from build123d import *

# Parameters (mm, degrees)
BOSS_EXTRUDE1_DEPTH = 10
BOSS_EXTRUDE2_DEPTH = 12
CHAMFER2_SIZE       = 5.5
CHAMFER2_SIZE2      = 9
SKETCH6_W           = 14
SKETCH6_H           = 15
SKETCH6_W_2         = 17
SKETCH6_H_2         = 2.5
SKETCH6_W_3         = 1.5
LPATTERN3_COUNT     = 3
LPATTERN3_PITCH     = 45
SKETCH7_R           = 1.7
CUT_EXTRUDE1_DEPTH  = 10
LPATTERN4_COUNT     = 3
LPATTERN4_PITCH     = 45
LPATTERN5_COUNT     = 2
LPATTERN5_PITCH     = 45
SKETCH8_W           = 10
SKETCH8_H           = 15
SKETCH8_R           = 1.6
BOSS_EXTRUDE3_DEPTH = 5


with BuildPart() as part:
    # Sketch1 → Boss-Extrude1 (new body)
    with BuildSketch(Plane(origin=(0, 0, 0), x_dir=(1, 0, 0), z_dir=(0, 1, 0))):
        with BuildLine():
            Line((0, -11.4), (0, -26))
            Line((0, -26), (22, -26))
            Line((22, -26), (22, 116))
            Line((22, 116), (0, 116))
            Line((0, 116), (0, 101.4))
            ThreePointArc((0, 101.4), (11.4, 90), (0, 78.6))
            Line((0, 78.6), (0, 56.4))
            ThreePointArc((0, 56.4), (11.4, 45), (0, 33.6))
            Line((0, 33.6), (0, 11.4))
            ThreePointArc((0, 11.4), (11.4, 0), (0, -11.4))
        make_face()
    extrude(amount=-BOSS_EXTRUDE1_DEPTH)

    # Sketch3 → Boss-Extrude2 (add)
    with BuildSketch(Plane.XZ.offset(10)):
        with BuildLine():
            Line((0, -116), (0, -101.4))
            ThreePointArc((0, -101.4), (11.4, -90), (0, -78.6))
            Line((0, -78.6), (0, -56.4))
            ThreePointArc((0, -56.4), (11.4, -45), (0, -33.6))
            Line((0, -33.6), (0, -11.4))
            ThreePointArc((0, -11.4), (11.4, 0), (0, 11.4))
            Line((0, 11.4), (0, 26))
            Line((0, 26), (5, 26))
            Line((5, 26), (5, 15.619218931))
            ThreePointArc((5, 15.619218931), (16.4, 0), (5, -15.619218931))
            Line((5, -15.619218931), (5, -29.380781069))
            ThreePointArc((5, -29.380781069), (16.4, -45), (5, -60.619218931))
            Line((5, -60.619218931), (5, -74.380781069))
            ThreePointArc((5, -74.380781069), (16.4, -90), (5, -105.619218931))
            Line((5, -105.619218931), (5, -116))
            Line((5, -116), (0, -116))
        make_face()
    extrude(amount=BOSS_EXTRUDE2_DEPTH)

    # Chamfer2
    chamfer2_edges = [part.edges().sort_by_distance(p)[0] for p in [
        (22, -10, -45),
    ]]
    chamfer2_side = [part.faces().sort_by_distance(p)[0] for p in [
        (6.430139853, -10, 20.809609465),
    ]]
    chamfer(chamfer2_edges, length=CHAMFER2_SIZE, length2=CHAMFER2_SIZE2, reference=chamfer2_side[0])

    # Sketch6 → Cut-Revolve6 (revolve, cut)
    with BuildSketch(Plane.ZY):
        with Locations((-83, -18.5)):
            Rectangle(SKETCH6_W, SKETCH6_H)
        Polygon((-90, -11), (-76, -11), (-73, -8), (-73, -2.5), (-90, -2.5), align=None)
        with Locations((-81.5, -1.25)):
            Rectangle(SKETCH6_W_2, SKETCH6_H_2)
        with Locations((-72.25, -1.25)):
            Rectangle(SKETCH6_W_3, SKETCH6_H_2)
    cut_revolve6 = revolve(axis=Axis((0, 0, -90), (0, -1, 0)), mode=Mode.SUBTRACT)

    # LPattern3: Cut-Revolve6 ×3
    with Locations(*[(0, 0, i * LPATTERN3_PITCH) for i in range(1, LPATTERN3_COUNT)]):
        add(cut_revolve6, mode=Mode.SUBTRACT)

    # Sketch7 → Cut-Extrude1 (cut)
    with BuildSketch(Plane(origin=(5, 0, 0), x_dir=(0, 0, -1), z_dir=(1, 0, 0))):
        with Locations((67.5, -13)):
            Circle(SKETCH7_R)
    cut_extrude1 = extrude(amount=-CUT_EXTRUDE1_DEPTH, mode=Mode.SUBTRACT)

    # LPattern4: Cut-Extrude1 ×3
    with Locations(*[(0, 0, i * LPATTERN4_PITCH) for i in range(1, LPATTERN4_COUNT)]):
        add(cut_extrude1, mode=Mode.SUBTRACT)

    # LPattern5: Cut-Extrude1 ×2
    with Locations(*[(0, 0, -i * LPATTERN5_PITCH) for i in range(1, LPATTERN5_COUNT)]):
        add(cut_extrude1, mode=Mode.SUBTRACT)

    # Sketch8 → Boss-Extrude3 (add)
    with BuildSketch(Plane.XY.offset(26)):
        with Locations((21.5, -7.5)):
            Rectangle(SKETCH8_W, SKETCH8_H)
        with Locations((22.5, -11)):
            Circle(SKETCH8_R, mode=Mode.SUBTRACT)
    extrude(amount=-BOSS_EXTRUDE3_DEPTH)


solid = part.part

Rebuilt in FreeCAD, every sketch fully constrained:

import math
import FreeCAD as App
import Part
import Sketcher

V = App.Vector
Q = App.Units.Quantity


def edges_at(feature, points):
    """Names of the edges that pass closest to the given points."""
    edges = feature.Shape.Edges
    near = lambda p: min(range(len(edges)), key=lambda i: edges[i].distToShape(Part.Vertex(*p))[0])
    return sorted({f"Edge{near(p) + 1}" for p in points})

doc = App.newDocument("Part")
body = doc.addObject("PartDesign::Body", "Body")

# Sketch on XZ plane
sketch1 = body.newObject("Sketcher::SketchObject", "Sketch")
sketch1.AttachmentSupport = (doc.getObject("XZ_Plane"), [""])
sketch1.MapMode = "FlatFace"
sketch1.addGeometry([
    Part.LineSegment(V(0, 11, 0), V(0, 26, 0)),  # 0
    Part.LineSegment(V(0, 26, 0), V(22, 26, 0)),  # 1
    Part.LineSegment(V(22, 26, 0), V(22, -116, 0)),  # 2
    Part.LineSegment(V(22, -116, 0), V(0, -116, 0)),  # 3
    Part.LineSegment(V(0, -116, 0), V(0, -101, 0)),  # 4
    Part.ArcOfCircle(Part.Circle(V(0, -90, 0), V(0, 0, 1), 11), math.radians(-90), math.radians(90)),  # 5
    Part.LineSegment(V(0, -79, 0), V(0, -56, 0)),  # 6
    Part.ArcOfCircle(Part.Circle(V(0, -45, 0), V(0, 0, 1), 11), math.radians(-90), math.radians(90)),  # 7
    Part.LineSegment(V(0, -34, 0), V(0, -11, 0)),  # 8
    Part.ArcOfCircle(Part.Circle(V(0, 0, 0), V(0, 0, 1), 11), math.radians(-90), math.radians(90)),  # 9
], False)
sketch1.addConstraint([
    Sketcher.Constraint("Coincident", 0, 2, 1, 1),
    Sketcher.Constraint("Coincident", 1, 2, 2, 1),
    Sketcher.Constraint("Coincident", 2, 2, 3, 1),
    Sketcher.Constraint("Coincident", 3, 2, 4, 1),
    Sketcher.Constraint("Coincident", 4, 2, 5, 1),
    Sketcher.Constraint("Coincident", 5, 2, 6, 1),
    Sketcher.Constraint("Coincident", 6, 2, 7, 1),
    Sketcher.Constraint("Coincident", 7, 2, 8, 1),
    Sketcher.Constraint("Coincident", 8, 2, 9, 1),
    Sketcher.Constraint("Coincident", 9, 2, 0, 1),
    Sketcher.Constraint("Vertical", 0),
    Sketcher.Constraint("Horizontal", 1),
    Sketcher.Constraint("Vertical", 2),
    Sketcher.Constraint("Horizontal", 3),
    Sketcher.Constraint("Vertical", 4),
    Sketcher.Constraint("Vertical", 6),
    Sketcher.Constraint("Vertical", 8),
    Sketcher.Constraint("Coincident", 9, 3, -1, 1),
    Sketcher.Constraint("Equal", 5, 7),
    Sketcher.Constraint("Equal", 7, 9),
    Sketcher.Constraint("PointOnObject", 5, 3, -2),
    Sketcher.Constraint("PointOnObject", 7, 3, -2),
    Sketcher.Constraint("PointOnObject", 0, 2, -2),
    Sketcher.Constraint("PointOnObject", 3, 2, -2),
    Sketcher.Constraint("PointOnObject", 5, 2, -2),
    Sketcher.Constraint("PointOnObject", 7, 2, -2),
    Sketcher.Constraint("Equal", 0, 4),
    Sketcher.Constraint("Equal", 6, 8),
    Sketcher.Constraint("Radius", 5, Q("11.4 mm")),
    Sketcher.Constraint("DistanceX", 1, 1, 1, 2, Q("22 mm")),
    Sketcher.Constraint("DistanceY", 2, 2, 2, 1, Q("142 mm")),
    Sketcher.Constraint("DistanceY", 0, 1, 0, 2, Q("14.6 mm")),
])
pad1 = body.newObject("PartDesign::Pad", "Pad")
pad1.Profile = sketch1
pad1.Length = 10

# Sketch on XZ plane
sketch2 = body.newObject("Sketcher::SketchObject", "Sketch001")
sketch2.AttachmentSupport = (doc.getObject("XZ_Plane"), [""])
sketch2.MapMode = "FlatFace"
sketch2.AttachmentOffset = App.Placement(V(0, 0, 10), App.Rotation())
sketch2.addGeometry([
    Part.LineSegment(V(0, -101, 0), V(0, -116, 0)),  # 0
    Part.LineSegment(V(0, -116, 0), V(5, -116, 0)),  # 1
    Part.LineSegment(V(5, -116, 0), V(5, -106, 0)),  # 2
    Part.ArcOfCircle(Part.Circle(V(0, -90, 0), V(0, 0, 1), 16), math.radians(-72), math.radians(72)),  # 3
    Part.LineSegment(V(5, -74, 0), V(5, -61, 0)),  # 4
    Part.ArcOfCircle(Part.Circle(V(0, -45, 0), V(0, 0, 1), 16), math.radians(-72), math.radians(72)),  # 5
    Part.LineSegment(V(5, -29, 0), V(5, -16, 0)),  # 6
    Part.ArcOfCircle(Part.Circle(V(0, 0, 0), V(0, 0, 1), 16), math.radians(-72), math.radians(72)),  # 7
    Part.LineSegment(V(5, 16, 0), V(5, 26, 0)),  # 8
    Part.LineSegment(V(5, 26, 0), V(0, 26, 0)),  # 9
    Part.LineSegment(V(0, 26, 0), V(0, 11, 0)),  # 10
    Part.ArcOfCircle(Part.Circle(V(0, 0, 0), V(0, 0, 1), 11), math.radians(-90), math.radians(90)),  # 11
    Part.LineSegment(V(0, -11, 0), V(0, -34, 0)),  # 12
    Part.ArcOfCircle(Part.Circle(V(0, -45, 0), V(0, 0, 1), 11), math.radians(-90), math.radians(90)),  # 13
    Part.LineSegment(V(0, -56, 0), V(0, -79, 0)),  # 14
    Part.ArcOfCircle(Part.Circle(V(0, -90, 0), V(0, 0, 1), 11), math.radians(-90), math.radians(90)),  # 15
], False)
sketch2.addConstraint([
    Sketcher.Constraint("Coincident", 0, 2, 1, 1),
    Sketcher.Constraint("Coincident", 1, 2, 2, 1),
    Sketcher.Constraint("Coincident", 2, 2, 3, 1),
    Sketcher.Constraint("Coincident", 3, 2, 4, 1),
    Sketcher.Constraint("Coincident", 4, 2, 5, 1),
    Sketcher.Constraint("Coincident", 5, 2, 6, 1),
    Sketcher.Constraint("Coincident", 6, 2, 7, 1),
    Sketcher.Constraint("Coincident", 7, 2, 8, 1),
    Sketcher.Constraint("Coincident", 8, 2, 9, 1),
    Sketcher.Constraint("Coincident", 9, 2, 10, 1),
    Sketcher.Constraint("Coincident", 10, 2, 11, 2),
    Sketcher.Constraint("Coincident", 11, 1, 12, 1),
    Sketcher.Constraint("Coincident", 12, 2, 13, 2),
    Sketcher.Constraint("Coincident", 13, 1, 14, 1),
    Sketcher.Constraint("Coincident", 14, 2, 15, 2),
    Sketcher.Constraint("Coincident", 15, 1, 0, 1),
    Sketcher.Constraint("Vertical", 0),
    Sketcher.Constraint("Horizontal", 1),
    Sketcher.Constraint("Vertical", 2),
    Sketcher.Constraint("Vertical", 4),
    Sketcher.Constraint("Vertical", 6),
    Sketcher.Constraint("Vertical", 8),
    Sketcher.Constraint("Horizontal", 9),
    Sketcher.Constraint("Vertical", 10),
    Sketcher.Constraint("Vertical", 12),
    Sketcher.Constraint("Vertical", 14),
    Sketcher.Constraint("Coincident", 7, 3, -1, 1),
    Sketcher.Constraint("Coincident", 11, 3, -1, 1),
    Sketcher.Constraint("Coincident", 13, 3, 5, 3),
    Sketcher.Constraint("Coincident", 15, 3, 3, 3),
    Sketcher.Constraint("Equal", 3, 5),
    Sketcher.Constraint("Equal", 5, 7),
    Sketcher.Constraint("Equal", 11, 13),
    Sketcher.Constraint("Equal", 13, 15),
    Sketcher.Constraint("PointOnObject", 3, 3, -2),
    Sketcher.Constraint("PointOnObject", 5, 3, -2),
    Sketcher.Constraint("PointOnObject", 0, 2, -2),
    Sketcher.Constraint("PointOnObject", 9, 2, -2),
    Sketcher.Constraint("PointOnObject", 11, 1, -2),
    Sketcher.Constraint("PointOnObject", 13, 1, -2),
    Sketcher.Constraint("Vertical", 2, 2, 3, 2),
    Sketcher.Constraint("Vertical", 4, 2, 5, 2),
    Sketcher.Constraint("Vertical", 6, 2, 7, 2),
    Sketcher.Constraint("Equal", 4, 6),
    Sketcher.Constraint("Equal", 2, 8),
    Sketcher.Constraint("Radius", 3, Q("16.4 mm")),
    Sketcher.Constraint("Radius", 11, Q("11.4 mm")),
    Sketcher.Constraint("DistanceX", 1, 1, 1, 2, Q("5 mm")),
    Sketcher.Constraint("DistanceY", 0, 2, 0, 1, Q("14.6 mm")),
    Sketcher.Constraint("DistanceY", 12, 2, 12, 1, Q("22.2 mm")),
])
pad2 = body.newObject("PartDesign::Pad", "Pad001")
pad2.Profile = sketch2
pad2.Length = 12
doc.recompute()

chamfer = body.newObject("PartDesign::Chamfer", "Chamfer")
chamfer.Base = (pad2, edges_at(pad2, [(22, -10, -45)]))
chamfer.ChamferType = "Two distances"
chamfer.Size = 5.5
chamfer.Size2 = 9
chamfer.FlipDirection = True

# Sketch on YZ plane
sketch3 = body.newObject("Sketcher::SketchObject", "Sketch002")
sketch3.AttachmentSupport = (doc.getObject("YZ_Plane"), [""])
sketch3.MapMode = "FlatFace"
sketch3.addGeometry([
    Part.LineSegment(V(-26, -90, 0), V(-26, -76, 0)),  # 0
    Part.LineSegment(V(-26, -76, 0), V(-11, -76, 0)),  # 1
    Part.LineSegment(V(-11, -76, 0), V(-8, -73, 0)),  # 2
    Part.LineSegment(V(-8, -73, 0), V(-2.5, -73, 0)),  # 3
    Part.LineSegment(V(-2.5, -73, 0), V(-2.5, -71.5, 0)),  # 4
    Part.LineSegment(V(-2.5, -71.5, 0), V(0, -71.5, 0)),  # 5
    Part.LineSegment(V(0, -71.5, 0), V(0, -90, 0)),  # 6
    Part.LineSegment(V(0, -90, 0), V(-26, -90, 0)),  # 7
], False)
sketch3.addGeometry(Part.LineSegment(V(0, -90, 0), V(-26, -90, 0)), True)  # axis
sketch3.addConstraint([
    Sketcher.Constraint("Coincident", 0, 2, 1, 1),
    Sketcher.Constraint("Coincident", 1, 2, 2, 1),
    Sketcher.Constraint("Coincident", 2, 2, 3, 1),
    Sketcher.Constraint("Coincident", 3, 2, 4, 1),
    Sketcher.Constraint("Coincident", 4, 2, 5, 1),
    Sketcher.Constraint("Coincident", 5, 2, 6, 1),
    Sketcher.Constraint("Coincident", 6, 2, 7, 1),
    Sketcher.Constraint("Coincident", 7, 2, 0, 1),
    Sketcher.Constraint("Vertical", 0),
    Sketcher.Constraint("Horizontal", 1),
    Sketcher.Constraint("Horizontal", 3),
    Sketcher.Constraint("Vertical", 4),
    Sketcher.Constraint("Horizontal", 5),
    Sketcher.Constraint("Vertical", 6),
    Sketcher.Constraint("Horizontal", 7),
    Sketcher.Constraint("Horizontal", 8),
    Sketcher.Constraint("Coincident", 8, 1, 6, 2),
    Sketcher.Constraint("PointOnObject", 5, 2, -2),
    Sketcher.Constraint("Vertical", 0, 2, 8, 2),
    Sketcher.Constraint("DistanceX", 1, 1, 1, 2, Q("15 mm")),
    Sketcher.Constraint("DistanceX", 7, 2, 7, 1, Q("26 mm")),
    Sketcher.Constraint("DistanceY", 0, 1, 0, 2, Q("14 mm")),
    Sketcher.Constraint("Angle", 2, Q("45 deg")),
    Sketcher.Constraint("DistanceX", 3, 1, 3, 2, Q("5.5 mm")),
    Sketcher.Constraint("DistanceX", 5, 1, 5, 2, Q("2.5 mm")),
    Sketcher.Constraint("DistanceY", 4, 1, 4, 2, Q("1.5 mm")),
    Sketcher.Constraint("DistanceY", 0, 2, -1, 1, Q("76 mm")),
])
groove = body.newObject("PartDesign::Groove", "Groove")
groove.Profile = sketch3
groove.ReferenceAxis = (sketch3, ["Axis0"])
groove.Angle = 360
doc.recompute()

linearpattern = body.newObject("PartDesign::LinearPattern", "LinearPattern")
linearpattern.Originals = [groove]
linearpattern.Direction = (doc.getObject("Z_Axis"), [""])
linearpattern.Mode = "offset"
linearpattern.Offset = 45
linearpattern.Occurrences = 3
body.Tip = linearpattern

# Sketch on YZ plane
sketch4 = body.newObject("Sketcher::SketchObject", "Sketch003")
sketch4.AttachmentSupport = (doc.getObject("YZ_Plane"), [""])
sketch4.MapMode = "FlatFace"
sketch4.AttachmentOffset = App.Placement(V(0, 0, 5), App.Rotation())
sketch4.addGeometry(Part.Circle(V(-13, -67.5, 0), V(0, 0, 1), 1.7), False)
sketch4.addConstraint([
    Sketcher.Constraint("Diameter", 0, Q("3.4 mm")),
    Sketcher.Constraint("DistanceX", 0, 3, -1, 1, Q("13 mm")),
    Sketcher.Constraint("DistanceY", 0, 3, -1, 1, Q("67.5 mm")),
])
pocket1 = body.newObject("PartDesign::Pocket", "Pocket")
pocket1.Profile = sketch4
pocket1.Length = 10
doc.recompute()

linearpattern2 = body.newObject("PartDesign::LinearPattern", "LinearPattern001")
linearpattern2.Originals = [pocket1]
linearpattern2.Direction = (doc.getObject("Z_Axis"), [""])
linearpattern2.Mode = "offset"
linearpattern2.Offset = 45
linearpattern2.Occurrences = 3
body.Tip = linearpattern2
doc.recompute()

linearpattern3 = body.newObject("PartDesign::LinearPattern", "LinearPattern002")
linearpattern3.Originals = [pocket1]
linearpattern3.Direction = (doc.getObject("Z_Axis"), [""])
linearpattern3.Mode = "offset"
linearpattern3.Offset = 45
linearpattern3.Occurrences = 2
linearpattern3.Reversed = True
body.Tip = linearpattern3

# Sketch on XY plane
sketch5 = body.newObject("Sketcher::SketchObject", "Sketch004")
sketch5.AttachmentSupport = (doc.getObject("XY_Plane"), [""])
sketch5.MapMode = "FlatFace"
sketch5.AttachmentOffset = App.Placement(V(0, 0, 26), App.Rotation())
sketch5.addGeometry([
    Part.LineSegment(V(16.5, 0, 0), V(16.5, -15, 0)),  # 0
    Part.LineSegment(V(16.5, -15, 0), V(26.5, -15, 0)),  # 1
    Part.LineSegment(V(26.5, -15, 0), V(26.5, 0, 0)),  # 2
    Part.LineSegment(V(26.5, 0, 0), V(16.5, 0, 0)),  # 3
    Part.Circle(V(22.5, -11, 0), V(0, 0, 1), 1.6),  # 4
], False)
sketch5.addConstraint([
    Sketcher.Constraint("Coincident", 0, 2, 1, 1),
    Sketcher.Constraint("Coincident", 1, 2, 2, 1),
    Sketcher.Constraint("Coincident", 2, 2, 3, 1),
    Sketcher.Constraint("Coincident", 3, 2, 0, 1),
    Sketcher.Constraint("Vertical", 0),
    Sketcher.Constraint("Horizontal", 1),
    Sketcher.Constraint("Vertical", 2),
    Sketcher.Constraint("Horizontal", 3),
    Sketcher.Constraint("PointOnObject", 2, 2, -1),
    Sketcher.Constraint("Diameter", 4, Q("3.2 mm")),
    Sketcher.Constraint("DistanceX", 1, 1, 1, 2, Q("10 mm")),
    Sketcher.Constraint("DistanceY", 0, 2, 0, 1, Q("15 mm")),
    Sketcher.Constraint("DistanceY", 4, 3, -1, 1, Q("11 mm")),
    Sketcher.Constraint("DistanceX", 0, 2, 4, 3, Q("6 mm")),
    Sketcher.Constraint("DistanceX", -1, 1, 4, 3, Q("22.5 mm")),
])
pad3 = body.newObject("PartDesign::Pad", "Pad002")
pad3.Profile = sketch5
pad3.Length = 5
pad3.Reversed = True

doc.recompute()
